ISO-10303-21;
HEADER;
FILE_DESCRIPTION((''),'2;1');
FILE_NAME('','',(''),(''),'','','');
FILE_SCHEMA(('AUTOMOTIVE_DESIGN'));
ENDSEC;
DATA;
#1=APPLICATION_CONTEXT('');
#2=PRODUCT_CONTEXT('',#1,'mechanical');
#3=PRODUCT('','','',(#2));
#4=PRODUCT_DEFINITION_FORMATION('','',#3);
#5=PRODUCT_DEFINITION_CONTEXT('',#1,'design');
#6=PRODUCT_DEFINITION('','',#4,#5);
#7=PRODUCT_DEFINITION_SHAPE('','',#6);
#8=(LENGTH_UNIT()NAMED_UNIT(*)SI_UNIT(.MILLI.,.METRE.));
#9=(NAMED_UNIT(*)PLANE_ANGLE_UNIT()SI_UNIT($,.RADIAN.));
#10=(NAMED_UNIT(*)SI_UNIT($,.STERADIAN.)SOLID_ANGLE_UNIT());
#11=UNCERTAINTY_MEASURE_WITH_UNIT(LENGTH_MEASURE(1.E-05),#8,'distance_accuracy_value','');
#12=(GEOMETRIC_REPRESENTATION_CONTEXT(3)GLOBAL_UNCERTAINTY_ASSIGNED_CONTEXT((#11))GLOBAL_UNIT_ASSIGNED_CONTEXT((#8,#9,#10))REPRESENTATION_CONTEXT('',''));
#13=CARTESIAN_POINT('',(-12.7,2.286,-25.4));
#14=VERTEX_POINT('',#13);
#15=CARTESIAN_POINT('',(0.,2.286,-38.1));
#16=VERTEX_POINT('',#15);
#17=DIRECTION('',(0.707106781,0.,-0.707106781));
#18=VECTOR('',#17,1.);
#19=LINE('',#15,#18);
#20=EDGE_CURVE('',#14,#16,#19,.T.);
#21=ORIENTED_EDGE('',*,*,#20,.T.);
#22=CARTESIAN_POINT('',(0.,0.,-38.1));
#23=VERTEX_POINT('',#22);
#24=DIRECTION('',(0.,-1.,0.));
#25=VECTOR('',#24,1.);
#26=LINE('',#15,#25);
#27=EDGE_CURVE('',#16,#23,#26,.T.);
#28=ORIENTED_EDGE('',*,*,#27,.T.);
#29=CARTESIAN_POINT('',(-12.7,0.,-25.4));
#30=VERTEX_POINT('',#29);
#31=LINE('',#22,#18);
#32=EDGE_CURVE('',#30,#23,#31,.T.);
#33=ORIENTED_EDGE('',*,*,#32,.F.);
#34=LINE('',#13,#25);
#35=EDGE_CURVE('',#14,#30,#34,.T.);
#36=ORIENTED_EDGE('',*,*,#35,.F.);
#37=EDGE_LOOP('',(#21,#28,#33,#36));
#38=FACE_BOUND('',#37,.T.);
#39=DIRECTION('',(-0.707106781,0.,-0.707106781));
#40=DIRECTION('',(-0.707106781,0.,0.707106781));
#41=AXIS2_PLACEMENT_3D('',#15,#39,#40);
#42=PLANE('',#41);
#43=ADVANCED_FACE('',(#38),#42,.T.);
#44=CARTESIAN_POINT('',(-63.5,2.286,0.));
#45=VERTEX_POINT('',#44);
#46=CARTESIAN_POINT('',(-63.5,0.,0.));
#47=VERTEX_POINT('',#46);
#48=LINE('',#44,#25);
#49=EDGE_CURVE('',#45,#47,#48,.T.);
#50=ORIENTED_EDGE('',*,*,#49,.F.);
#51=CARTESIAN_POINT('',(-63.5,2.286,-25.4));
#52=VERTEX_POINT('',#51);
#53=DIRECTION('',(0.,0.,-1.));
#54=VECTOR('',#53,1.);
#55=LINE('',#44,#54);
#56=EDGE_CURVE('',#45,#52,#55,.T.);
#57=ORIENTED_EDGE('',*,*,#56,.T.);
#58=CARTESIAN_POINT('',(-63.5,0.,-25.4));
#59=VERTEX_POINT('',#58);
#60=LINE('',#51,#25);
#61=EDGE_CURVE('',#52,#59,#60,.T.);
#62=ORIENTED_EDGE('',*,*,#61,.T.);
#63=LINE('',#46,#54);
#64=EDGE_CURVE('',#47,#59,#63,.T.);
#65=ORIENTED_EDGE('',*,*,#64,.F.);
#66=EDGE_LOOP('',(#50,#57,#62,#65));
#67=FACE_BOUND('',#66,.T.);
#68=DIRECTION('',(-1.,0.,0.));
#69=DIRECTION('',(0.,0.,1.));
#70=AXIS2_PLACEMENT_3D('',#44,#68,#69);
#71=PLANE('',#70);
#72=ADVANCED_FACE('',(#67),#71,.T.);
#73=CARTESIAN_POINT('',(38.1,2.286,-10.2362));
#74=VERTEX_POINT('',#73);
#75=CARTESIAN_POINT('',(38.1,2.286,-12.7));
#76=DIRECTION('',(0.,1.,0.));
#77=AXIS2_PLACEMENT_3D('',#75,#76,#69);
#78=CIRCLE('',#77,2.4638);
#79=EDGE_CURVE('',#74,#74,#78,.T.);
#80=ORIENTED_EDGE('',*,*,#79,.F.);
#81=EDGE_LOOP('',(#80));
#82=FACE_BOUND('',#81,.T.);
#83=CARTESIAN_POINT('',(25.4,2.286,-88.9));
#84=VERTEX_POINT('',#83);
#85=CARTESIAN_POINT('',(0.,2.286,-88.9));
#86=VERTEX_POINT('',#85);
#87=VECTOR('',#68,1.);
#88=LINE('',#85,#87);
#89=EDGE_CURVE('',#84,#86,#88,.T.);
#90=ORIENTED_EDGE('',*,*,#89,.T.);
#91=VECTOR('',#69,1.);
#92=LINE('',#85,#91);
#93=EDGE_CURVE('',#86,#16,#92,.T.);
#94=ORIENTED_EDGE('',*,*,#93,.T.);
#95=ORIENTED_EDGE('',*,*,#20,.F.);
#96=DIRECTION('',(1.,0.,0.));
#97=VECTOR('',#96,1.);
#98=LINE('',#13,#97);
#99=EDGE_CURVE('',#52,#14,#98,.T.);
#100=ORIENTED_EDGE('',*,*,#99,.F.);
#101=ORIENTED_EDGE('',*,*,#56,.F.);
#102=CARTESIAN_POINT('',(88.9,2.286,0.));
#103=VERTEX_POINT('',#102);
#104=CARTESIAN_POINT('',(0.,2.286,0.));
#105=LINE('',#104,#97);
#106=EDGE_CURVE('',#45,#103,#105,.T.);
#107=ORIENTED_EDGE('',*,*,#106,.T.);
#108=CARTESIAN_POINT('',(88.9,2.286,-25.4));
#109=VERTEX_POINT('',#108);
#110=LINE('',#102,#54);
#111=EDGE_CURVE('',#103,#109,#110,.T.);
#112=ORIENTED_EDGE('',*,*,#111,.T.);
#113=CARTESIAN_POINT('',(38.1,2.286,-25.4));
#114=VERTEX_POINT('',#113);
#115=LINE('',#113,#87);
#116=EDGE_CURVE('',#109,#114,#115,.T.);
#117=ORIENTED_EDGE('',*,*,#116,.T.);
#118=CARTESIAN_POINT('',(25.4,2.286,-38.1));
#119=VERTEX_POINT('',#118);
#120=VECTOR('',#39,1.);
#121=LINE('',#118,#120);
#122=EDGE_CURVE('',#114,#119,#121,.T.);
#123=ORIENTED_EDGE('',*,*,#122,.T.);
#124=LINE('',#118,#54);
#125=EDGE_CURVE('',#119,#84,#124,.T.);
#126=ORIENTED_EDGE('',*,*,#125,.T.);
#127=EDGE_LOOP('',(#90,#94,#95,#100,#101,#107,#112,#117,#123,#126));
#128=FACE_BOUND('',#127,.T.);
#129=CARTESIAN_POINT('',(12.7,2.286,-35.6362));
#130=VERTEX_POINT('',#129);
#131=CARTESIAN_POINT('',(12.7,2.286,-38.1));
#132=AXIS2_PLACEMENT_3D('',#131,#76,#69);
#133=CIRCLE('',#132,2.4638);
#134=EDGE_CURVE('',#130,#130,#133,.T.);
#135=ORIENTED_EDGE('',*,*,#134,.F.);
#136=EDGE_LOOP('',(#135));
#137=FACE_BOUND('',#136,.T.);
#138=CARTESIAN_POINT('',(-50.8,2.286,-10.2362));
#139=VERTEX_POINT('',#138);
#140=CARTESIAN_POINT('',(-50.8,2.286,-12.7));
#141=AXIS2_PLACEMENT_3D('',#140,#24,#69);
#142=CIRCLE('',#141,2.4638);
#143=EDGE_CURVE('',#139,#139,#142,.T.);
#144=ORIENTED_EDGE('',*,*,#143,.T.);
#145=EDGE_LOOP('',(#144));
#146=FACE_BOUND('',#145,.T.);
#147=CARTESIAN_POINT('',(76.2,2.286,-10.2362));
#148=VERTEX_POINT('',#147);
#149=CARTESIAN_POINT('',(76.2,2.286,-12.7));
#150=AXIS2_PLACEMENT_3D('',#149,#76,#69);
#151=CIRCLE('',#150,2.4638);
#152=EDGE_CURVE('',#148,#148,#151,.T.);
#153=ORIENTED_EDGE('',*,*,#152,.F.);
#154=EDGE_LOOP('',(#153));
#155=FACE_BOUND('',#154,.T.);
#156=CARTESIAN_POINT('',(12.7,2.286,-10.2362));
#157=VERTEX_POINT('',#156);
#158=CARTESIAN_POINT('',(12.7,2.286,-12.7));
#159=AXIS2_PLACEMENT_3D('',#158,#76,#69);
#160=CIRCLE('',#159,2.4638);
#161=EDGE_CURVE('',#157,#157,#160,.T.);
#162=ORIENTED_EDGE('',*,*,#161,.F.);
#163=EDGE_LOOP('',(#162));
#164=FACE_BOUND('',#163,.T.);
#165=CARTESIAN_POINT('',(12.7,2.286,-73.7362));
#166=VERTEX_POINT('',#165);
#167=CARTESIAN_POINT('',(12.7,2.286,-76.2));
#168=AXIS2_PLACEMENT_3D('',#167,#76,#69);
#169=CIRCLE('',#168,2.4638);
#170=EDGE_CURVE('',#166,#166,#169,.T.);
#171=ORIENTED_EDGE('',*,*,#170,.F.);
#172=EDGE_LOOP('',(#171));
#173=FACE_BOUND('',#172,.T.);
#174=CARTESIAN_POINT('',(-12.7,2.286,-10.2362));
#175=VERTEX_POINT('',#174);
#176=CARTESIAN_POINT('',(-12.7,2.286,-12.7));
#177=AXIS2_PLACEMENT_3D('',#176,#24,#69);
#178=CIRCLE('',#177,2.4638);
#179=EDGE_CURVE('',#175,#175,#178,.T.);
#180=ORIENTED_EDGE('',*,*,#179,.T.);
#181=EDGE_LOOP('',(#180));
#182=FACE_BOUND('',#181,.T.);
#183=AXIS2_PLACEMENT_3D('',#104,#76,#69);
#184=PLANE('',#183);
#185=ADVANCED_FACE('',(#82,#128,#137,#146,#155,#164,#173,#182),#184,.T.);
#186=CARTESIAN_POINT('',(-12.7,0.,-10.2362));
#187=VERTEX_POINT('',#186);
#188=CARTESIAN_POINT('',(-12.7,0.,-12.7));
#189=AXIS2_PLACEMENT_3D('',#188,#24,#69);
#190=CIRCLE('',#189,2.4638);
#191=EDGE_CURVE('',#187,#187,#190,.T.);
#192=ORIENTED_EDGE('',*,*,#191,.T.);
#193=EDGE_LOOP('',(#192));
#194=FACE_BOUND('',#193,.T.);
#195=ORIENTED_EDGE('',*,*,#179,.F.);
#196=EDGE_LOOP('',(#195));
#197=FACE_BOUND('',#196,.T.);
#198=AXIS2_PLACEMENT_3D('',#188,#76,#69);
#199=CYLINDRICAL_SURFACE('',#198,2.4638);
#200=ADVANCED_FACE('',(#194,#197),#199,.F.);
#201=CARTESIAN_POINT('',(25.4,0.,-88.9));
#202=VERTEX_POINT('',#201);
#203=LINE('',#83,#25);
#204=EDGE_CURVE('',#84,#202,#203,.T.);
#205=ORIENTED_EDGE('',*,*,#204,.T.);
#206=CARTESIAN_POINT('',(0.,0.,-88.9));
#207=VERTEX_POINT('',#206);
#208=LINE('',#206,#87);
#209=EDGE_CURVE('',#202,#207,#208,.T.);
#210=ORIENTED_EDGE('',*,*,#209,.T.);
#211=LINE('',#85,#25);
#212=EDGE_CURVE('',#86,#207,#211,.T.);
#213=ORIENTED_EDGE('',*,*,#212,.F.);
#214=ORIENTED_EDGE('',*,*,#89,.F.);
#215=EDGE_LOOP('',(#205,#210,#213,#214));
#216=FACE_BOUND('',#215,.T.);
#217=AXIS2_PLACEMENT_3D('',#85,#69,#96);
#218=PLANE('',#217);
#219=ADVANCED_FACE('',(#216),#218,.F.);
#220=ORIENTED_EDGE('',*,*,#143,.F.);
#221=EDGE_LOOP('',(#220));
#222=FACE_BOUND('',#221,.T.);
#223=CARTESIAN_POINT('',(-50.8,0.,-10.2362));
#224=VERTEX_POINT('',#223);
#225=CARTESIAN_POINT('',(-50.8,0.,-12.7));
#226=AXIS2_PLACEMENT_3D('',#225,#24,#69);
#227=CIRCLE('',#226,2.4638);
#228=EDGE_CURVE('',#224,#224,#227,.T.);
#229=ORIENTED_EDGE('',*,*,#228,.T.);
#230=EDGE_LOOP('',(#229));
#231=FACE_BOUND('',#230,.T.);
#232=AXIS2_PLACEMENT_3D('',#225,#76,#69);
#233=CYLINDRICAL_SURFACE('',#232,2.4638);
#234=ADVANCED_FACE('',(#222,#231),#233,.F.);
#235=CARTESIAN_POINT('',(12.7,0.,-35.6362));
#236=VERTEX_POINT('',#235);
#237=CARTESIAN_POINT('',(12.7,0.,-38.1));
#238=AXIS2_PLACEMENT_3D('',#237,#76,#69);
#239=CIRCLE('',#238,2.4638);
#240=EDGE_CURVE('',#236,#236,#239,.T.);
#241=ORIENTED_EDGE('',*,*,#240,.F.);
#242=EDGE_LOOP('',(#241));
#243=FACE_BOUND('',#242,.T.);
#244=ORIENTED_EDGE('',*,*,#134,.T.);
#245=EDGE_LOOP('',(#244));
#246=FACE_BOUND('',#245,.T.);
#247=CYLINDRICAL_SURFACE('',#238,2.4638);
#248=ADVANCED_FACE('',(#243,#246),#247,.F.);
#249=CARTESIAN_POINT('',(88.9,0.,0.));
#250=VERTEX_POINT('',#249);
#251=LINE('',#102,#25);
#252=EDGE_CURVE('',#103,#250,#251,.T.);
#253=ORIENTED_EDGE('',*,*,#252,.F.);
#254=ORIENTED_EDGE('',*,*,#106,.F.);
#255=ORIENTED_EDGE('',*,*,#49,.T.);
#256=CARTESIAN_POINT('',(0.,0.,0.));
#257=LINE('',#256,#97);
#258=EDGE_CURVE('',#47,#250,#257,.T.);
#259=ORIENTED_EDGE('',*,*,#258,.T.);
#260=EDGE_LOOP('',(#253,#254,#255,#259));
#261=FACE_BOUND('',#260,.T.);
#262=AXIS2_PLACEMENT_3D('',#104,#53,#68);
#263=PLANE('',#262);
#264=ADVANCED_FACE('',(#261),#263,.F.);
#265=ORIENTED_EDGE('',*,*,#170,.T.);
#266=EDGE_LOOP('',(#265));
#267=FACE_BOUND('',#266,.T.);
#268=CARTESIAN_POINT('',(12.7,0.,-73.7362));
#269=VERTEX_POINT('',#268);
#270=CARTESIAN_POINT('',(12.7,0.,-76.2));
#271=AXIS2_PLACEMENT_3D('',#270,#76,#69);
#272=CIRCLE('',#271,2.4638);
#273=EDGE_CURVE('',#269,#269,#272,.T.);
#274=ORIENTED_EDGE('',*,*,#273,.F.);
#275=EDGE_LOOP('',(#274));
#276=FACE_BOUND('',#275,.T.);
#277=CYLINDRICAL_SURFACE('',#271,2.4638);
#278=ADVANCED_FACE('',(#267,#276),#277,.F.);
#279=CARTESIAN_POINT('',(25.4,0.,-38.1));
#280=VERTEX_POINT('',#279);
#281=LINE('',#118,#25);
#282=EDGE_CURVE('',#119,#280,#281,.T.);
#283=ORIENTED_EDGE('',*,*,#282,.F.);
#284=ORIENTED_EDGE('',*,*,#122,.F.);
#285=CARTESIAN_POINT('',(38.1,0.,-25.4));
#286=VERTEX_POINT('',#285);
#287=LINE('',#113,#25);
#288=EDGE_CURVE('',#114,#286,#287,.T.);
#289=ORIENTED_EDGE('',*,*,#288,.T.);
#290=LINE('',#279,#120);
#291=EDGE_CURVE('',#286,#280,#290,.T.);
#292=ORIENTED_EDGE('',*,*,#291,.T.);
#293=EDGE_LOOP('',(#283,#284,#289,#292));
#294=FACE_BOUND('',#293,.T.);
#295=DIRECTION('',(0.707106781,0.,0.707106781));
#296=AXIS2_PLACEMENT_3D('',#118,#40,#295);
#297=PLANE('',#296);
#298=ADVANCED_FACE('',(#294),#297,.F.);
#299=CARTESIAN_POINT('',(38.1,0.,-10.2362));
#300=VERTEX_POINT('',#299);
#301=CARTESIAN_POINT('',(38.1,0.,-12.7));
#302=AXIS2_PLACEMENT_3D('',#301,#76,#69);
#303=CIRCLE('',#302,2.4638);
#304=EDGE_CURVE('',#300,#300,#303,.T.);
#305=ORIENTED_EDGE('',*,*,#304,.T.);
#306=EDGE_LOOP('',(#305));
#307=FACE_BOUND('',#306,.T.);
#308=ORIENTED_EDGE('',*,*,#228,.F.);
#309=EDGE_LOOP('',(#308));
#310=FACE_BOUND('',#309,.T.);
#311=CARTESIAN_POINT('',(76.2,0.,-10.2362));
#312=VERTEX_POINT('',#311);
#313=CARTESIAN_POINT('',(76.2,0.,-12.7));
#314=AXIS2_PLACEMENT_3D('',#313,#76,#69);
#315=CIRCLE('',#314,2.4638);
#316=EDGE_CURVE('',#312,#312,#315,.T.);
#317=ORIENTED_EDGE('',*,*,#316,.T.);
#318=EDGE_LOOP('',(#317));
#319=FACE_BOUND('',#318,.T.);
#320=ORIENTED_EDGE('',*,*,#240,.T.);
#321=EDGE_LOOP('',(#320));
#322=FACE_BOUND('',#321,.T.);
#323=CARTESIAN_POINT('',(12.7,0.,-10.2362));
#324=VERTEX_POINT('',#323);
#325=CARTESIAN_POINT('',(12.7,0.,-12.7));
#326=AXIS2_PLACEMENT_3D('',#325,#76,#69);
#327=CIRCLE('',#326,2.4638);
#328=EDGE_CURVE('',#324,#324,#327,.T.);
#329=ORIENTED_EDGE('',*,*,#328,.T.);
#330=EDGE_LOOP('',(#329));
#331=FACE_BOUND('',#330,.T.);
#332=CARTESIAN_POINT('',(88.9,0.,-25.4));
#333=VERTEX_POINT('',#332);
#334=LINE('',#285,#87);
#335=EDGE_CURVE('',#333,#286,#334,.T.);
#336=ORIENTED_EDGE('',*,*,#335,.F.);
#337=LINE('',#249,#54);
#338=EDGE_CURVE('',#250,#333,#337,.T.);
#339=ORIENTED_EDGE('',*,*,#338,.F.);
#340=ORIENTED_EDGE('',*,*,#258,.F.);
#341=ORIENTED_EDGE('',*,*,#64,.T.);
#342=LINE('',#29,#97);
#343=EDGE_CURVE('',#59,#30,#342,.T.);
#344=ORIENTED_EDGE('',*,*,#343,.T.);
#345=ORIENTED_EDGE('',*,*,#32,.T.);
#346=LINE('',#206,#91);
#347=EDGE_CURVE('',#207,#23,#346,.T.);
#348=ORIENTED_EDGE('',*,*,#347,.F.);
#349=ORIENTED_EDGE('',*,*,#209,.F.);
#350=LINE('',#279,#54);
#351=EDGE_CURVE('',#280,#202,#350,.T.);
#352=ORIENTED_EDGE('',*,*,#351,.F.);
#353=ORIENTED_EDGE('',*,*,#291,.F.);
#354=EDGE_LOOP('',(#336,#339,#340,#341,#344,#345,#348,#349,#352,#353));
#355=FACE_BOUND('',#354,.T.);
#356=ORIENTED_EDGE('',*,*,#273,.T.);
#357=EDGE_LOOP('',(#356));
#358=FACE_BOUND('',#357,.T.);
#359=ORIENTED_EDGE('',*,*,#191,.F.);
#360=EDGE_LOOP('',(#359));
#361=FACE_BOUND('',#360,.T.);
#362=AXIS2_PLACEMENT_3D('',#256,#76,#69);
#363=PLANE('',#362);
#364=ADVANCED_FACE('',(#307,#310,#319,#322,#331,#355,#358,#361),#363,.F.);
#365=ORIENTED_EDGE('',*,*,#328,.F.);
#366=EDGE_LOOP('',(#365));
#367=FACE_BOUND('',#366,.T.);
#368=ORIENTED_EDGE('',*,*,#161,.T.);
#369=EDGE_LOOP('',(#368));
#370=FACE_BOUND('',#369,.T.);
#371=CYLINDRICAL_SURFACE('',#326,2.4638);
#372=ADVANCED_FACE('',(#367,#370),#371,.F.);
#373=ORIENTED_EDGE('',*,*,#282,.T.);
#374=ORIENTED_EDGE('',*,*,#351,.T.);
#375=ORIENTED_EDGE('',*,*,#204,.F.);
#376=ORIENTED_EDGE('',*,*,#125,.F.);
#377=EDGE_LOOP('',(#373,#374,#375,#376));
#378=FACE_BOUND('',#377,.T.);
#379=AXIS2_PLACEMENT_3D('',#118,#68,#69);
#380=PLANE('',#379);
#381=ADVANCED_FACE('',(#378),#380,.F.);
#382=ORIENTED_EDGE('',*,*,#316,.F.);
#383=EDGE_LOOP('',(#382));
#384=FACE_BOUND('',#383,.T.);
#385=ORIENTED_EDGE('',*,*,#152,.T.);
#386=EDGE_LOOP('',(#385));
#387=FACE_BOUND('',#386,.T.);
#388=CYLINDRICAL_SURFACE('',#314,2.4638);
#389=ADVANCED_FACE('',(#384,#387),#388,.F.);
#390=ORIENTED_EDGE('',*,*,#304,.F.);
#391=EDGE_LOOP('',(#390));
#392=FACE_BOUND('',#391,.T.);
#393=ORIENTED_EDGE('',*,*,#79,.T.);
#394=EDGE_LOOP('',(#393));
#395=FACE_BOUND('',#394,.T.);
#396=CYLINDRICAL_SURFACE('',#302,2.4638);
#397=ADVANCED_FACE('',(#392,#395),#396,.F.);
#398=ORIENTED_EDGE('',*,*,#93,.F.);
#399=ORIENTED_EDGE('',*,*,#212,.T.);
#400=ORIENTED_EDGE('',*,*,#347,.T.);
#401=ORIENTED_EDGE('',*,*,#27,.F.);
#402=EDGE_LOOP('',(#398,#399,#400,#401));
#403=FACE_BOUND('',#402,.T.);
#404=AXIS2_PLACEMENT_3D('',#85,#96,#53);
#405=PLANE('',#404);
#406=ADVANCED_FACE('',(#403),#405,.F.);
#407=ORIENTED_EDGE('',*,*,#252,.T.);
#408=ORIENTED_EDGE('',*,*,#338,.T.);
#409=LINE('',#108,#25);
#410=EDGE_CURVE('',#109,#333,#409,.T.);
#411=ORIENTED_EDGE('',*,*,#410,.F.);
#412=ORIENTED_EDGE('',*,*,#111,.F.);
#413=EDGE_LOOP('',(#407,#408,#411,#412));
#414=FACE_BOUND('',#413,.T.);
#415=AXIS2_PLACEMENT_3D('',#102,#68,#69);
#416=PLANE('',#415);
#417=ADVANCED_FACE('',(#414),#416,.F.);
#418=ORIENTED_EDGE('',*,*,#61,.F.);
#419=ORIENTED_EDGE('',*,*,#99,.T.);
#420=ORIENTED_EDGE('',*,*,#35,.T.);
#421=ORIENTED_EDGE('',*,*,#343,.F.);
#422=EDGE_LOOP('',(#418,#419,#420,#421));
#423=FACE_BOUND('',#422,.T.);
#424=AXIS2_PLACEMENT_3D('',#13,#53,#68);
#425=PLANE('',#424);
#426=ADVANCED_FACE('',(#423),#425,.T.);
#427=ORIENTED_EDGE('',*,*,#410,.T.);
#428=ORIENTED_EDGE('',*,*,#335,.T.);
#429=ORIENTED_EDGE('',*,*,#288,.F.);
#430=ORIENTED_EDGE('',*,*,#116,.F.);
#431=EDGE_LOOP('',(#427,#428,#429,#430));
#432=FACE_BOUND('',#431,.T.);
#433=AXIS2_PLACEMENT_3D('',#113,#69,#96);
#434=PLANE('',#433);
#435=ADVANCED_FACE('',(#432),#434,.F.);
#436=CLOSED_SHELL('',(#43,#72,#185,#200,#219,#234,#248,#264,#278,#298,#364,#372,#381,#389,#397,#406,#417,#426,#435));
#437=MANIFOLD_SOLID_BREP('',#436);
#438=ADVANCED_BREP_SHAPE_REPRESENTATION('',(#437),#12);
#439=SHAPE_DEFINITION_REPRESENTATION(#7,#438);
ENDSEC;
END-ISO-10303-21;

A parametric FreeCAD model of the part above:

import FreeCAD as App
import Part
import Sketcher

V = App.Vector
Q = App.Units.Quantity

doc = App.newDocument("Part")
body = doc.addObject("PartDesign::Body", "Body")

# Sketch on XZ plane
sketch1 = body.newObject("Sketcher::SketchObject", "Sketch")
sketch1.AttachmentSupport = (doc.getObject("XZ_Plane"), [""])
sketch1.MapMode = "FlatFace"
sketch1.addGeometry([
    Part.LineSegment(V(38.1, -25.4, 0), V(25.4, -38.1, 0)),  # 0
    Part.LineSegment(V(25.4, -38.1, 0), V(25.4, -88.9, 0)),  # 1
    Part.LineSegment(V(25.4, -88.9, 0), V(0, -88.9, 0)),  # 2
    Part.LineSegment(V(0, -88.9, 0), V(0, 0, 0)),  # 3
    Part.LineSegment(V(0, 0, 0), V(88.9, 0, 0)),  # 4
    Part.LineSegment(V(88.9, 0, 0), V(88.9, -25.4, 0)),  # 5
    Part.LineSegment(V(88.9, -25.4, 0), V(38.1, -25.4, 0)),  # 6
], False)
sketch1.addConstraint([
    Sketcher.Constraint("Coincident", 0, 2, 1, 1),
    Sketcher.Constraint("Coincident", 1, 2, 2, 1),
    Sketcher.Constraint("Coincident", 2, 2, 3, 1),
    Sketcher.Constraint("Coincident", 3, 2, 4, 1),
    Sketcher.Constraint("Coincident", 4, 2, 5, 1),
    Sketcher.Constraint("Coincident", 5, 2, 6, 1),
    Sketcher.Constraint("Coincident", 6, 2, 0, 1),
    Sketcher.Constraint("Vertical", 1),
    Sketcher.Constraint("Horizontal", 2),
    Sketcher.Constraint("Vertical", 3),
    Sketcher.Constraint("Horizontal", 4),
    Sketcher.Constraint("Vertical", 5),
    Sketcher.Constraint("Horizontal", 6),
    Sketcher.Constraint("Coincident", 3, 2, -1, 1),
    Sketcher.Constraint("Equal", 6, 1),
    Sketcher.Constraint("Equal", 4, 3),
    Sketcher.Constraint("Equal", 2, 5),
    Sketcher.Constraint("DistanceX", 2, 2, 2, 1, Q("1 in")),
    Sketcher.Constraint("DistanceX", 6, 2, 6, 1, Q("2 in")),
    Sketcher.Constraint("DistanceX", 4, 1, 4, 2, Q("3.5 in")),
])
pad1 = body.newObject("PartDesign::Pad", "Pad")
pad1.Profile = sketch1
pad1.Length = Q("0.09 in")
pad1.Reversed = True
doc.recompute()

datumplane = body.newObject("PartDesign::Plane", "DatumPlane")
datumplane.AttachmentSupport = (doc.getObject("YZ_Plane"), [""])
datumplane.MapMode = "FlatFace"
datumplane.AttachmentOffset = App.Placement(V(0, 0, 0.5 * 25.4), App.Rotation())
mirrored = body.newObject("PartDesign::Mirrored", "Mirrored")
mirrored.Originals = [pad1]
mirrored.MirrorPlane = (datumplane, [""])
body.Tip = mirrored

# Sketch on XZ plane
sketch2 = body.newObject("Sketcher::SketchObject", "Sketch001")
sketch2.AttachmentSupport = (doc.getObject("XZ_Plane"), [""])
sketch2.MapMode = "FlatFace"
sketch2.AttachmentOffset = App.Placement(V(0, 0, -0.09 * 25.4), App.Rotation())
sketch2.addGeometry([
    Part.Circle(V(76.2, -12.7, 0), V(0, 0, 1), 2.4638),  # 0
    Part.Circle(V(12.7, -12.7, 0), V(0, 0, 1), 2.4638),  # 1
    Part.Circle(V(12.7, -76.2, 0), V(0, 0, 1), 2.4638),  # 2
    Part.Circle(V(12.7, -38.1, 0), V(0, 0, 1), 2.4638),  # 3
    Part.Circle(V(38.1, -12.7, 0), V(0, 0, 1), 2.4638),  # 4
], False)
sketch2.addConstraint([
    Sketcher.Constraint("Equal", 0, 1),
    Sketcher.Constraint("Equal", 1, 2),
    Sketcher.Constraint("Equal", 2, 3),
    Sketcher.Constraint("Equal", 3, 4),
    Sketcher.Constraint("Horizontal", 0, 3, 1, 3),
    Sketcher.Constraint("Horizontal", 1, 3, 4, 3),
    Sketcher.Constraint("Vertical", 1, 3, 2, 3),
    Sketcher.Constraint("Vertical", 2, 3, 3, 3),
    Sketcher.Constraint("Diameter", 0, Q("0.194 in")),
    Sketcher.Constraint("DistanceX", -1, 1, 0, 3, Q("3 in")),
    Sketcher.Constraint("DistanceY", 2, 3, -1, 1, Q("3 in")),
    Sketcher.Constraint("DistanceY", 3, 3, 1, 3, Q("1 in")),
    Sketcher.Constraint("DistanceX", 1, 3, 4, 3, Q("1 in")),
    Sketcher.Constraint("DistanceY", 0, 3, -1, 1, Q("0.5 in")),
    Sketcher.Constraint("DistanceX", -1, 1, 1, 3, Q("0.5 in")),
])
pocket1 = body.newObject("PartDesign::Pocket", "Pocket")
pocket1.Profile = sketch2
pocket1.Type = "ThroughAll"
pocket1.Reversed = True
doc.recompute()

datumplane2 = body.newObject("PartDesign::Plane", "DatumPlane001")
datumplane2.AttachmentSupport = (doc.getObject("YZ_Plane"), [""])
datumplane2.MapMode = "FlatFace"
datumplane2.AttachmentOffset = App.Placement(V(0, 0, 0.5 * 25.4), App.Rotation())
mirrored2 = body.newObject("PartDesign::Mirrored", "Mirrored001")
mirrored2.Originals = [pocket1]
mirrored2.MirrorPlane = (datumplane2, [""])
body.Tip = mirrored2

doc.recompute()
